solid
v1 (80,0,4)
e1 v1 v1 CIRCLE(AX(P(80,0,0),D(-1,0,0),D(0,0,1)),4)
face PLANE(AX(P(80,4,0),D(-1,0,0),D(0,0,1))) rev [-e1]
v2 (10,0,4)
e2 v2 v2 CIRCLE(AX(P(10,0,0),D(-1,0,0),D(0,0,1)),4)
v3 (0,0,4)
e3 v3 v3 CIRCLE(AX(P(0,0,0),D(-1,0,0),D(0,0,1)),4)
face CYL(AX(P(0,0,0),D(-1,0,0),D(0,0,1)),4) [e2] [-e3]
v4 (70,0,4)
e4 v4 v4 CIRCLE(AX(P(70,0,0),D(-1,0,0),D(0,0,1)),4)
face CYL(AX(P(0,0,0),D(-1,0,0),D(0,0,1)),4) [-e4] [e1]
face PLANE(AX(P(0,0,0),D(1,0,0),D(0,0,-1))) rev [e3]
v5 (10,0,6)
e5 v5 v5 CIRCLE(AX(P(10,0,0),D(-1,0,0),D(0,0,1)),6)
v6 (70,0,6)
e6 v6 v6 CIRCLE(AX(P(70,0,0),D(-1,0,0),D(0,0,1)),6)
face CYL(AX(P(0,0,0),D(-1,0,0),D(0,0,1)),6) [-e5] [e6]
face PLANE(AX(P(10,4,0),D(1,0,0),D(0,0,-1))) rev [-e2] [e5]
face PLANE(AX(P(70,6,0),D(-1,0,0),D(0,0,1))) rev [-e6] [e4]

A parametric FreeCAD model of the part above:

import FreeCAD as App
import Part
import Sketcher
from FreeCAD import Vector
Q = App.Units.Quantity

doc = App.newDocument("Part")
body = doc.addObject("PartDesign::Body", "Body")

# Sketch on XY plane
sketch1 = body.newObject("Sketcher::SketchObject", "Sketch")
sketch1.AttachmentSupport = (doc.getObject("XY_Plane"), [""])
sketch1.MapMode = "FlatFace"
sketch1.addGeometry(Part.LineSegment(Vector(0, 0, 0), Vector(80, 0, 0)), False)
sketch1.addGeometry(Part.LineSegment(Vector(80, 0, 0), Vector(80, 4, 0)), False)
sketch1.addGeometry(Part.LineSegment(Vector(80, 4, 0), Vector(70, 4, 0)), False)
sketch1.addGeometry(Part.LineSegment(Vector(70, 4, 0), Vector(70, 6, 0)), False)
sketch1.addGeometry(Part.LineSegment(Vector(70, 6, 0), Vector(10, 6, 0)), False)
sketch1.addGeometry(Part.LineSegment(Vector(10, 6, 0), Vector(10, 4, 0)), False)
sketch1.addGeometry(Part.LineSegment(Vector(10, 4, 0), Vector(0, 4, 0)), False)
sketch1.addGeometry(Part.LineSegment(Vector(0, 4, 0), Vector(0, 0, 0)), False)
sketch1.addConstraint(Sketcher.Constraint("Coincident", 0, 2, 1, 1))
sketch1.addConstraint(Sketcher.Constraint("Coincident", 1, 2, 2, 1))
sketch1.addConstraint(Sketcher.Constraint("Coincident", 2, 2, 3, 1))
sketch1.addConstraint(Sketcher.Constraint("Coincident", 3, 2, 4, 1))
sketch1.addConstraint(Sketcher.Constraint("Coincident", 4, 2, 5, 1))
sketch1.addConstraint(Sketcher.Constraint("Coincident", 5, 2, 6, 1))
sketch1.addConstraint(Sketcher.Constraint("Coincident", 6, 2, 7, 1))
sketch1.addConstraint(Sketcher.Constraint("Coincident", 7, 2, 0, 1))
sketch1.addConstraint(Sketcher.Constraint("Horizontal", 0))
sketch1.addConstraint(Sketcher.Constraint("Vertical", 1))
sketch1.addConstraint(Sketcher.Constraint("Horizontal", 2))
sketch1.addConstraint(Sketcher.Constraint("Vertical", 3))
sketch1.addConstraint(Sketcher.Constraint("Horizontal", 4))
sketch1.addConstraint(Sketcher.Constraint("Vertical", 5))
sketch1.addConstraint(Sketcher.Constraint("Horizontal", 6))
sketch1.addConstraint(Sketcher.Constraint("Vertical", 7))
sketch1.addConstraint(Sketcher.Constraint("Coincident", 7, 2, -1, 1))
sketch1.addConstraint(Sketcher.Constraint("Horizontal", 2, 2, 5, 2))
sketch1.addConstraint(Sketcher.Constraint("Equal", 2, 6))
sketch1.addConstraint(Sketcher.Constraint("DistanceX", 0, 1, 0, 2, Q("80 mm")))
sketch1.addConstraint(Sketcher.Constraint("DistanceX", 2, 2, 2, 1, Q("10 mm")))
sketch1.addConstraint(Sketcher.Constraint("DistanceY", 1, 1, 1, 2, Q("4 mm")))
sketch1.addConstraint(Sketcher.Constraint("DistanceY", 3, 1, 3, 2, Q("2 mm")))
revolution = body.newObject("PartDesign::Revolution", "Revolution")
revolution.Profile = sketch1
revolution.ReferenceAxis = (sketch1, ["H_Axis"])
revolution.Angle = 360

doc.recompute()
